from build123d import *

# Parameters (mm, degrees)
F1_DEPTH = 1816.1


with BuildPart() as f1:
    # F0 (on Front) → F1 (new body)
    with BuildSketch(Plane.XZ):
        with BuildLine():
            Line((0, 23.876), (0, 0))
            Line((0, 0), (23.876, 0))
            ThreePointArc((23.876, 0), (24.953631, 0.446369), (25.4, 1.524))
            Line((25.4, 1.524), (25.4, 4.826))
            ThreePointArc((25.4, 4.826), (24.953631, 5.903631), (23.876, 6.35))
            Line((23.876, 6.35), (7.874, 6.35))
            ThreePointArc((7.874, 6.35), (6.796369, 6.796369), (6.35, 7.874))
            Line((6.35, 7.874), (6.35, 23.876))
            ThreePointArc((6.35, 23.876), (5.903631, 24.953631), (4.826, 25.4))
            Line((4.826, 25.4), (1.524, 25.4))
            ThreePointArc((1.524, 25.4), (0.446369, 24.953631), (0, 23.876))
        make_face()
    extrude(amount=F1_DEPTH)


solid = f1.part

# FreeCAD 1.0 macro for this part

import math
import FreeCAD as App
import Part
import Sketcher
Q = App.Units.Quantity

doc = App.newDocument("Part")
body = doc.addObject("PartDesign::Body", "Body")

sketch1 = doc.addObject("Sketcher::SketchObject", "Sketch")
body.addObject(sketch1)
sketch1.AttachmentSupport = (doc.XZ_Plane, [""])
sketch1.MapMode = "FlatFace"
sketch1.addGeometry([
    Part.LineSegment(App.Vector(0, 23.9, 0), App.Vector(0, 0, 0)),
    Part.LineSegment(App.Vector(0, 0, 0), App.Vector(23.9, 0, 0)),
    Part.ArcOfCircle(Part.Circle(App.Vector(23.9, 1.5, 0), App.Vector(0, 0, 1), 1.5), math.radians(-90), math.radians(0)),
    Part.LineSegment(App.Vector(25.4, 1.5, 0), App.Vector(25.4, 4.8, 0)),
    Part.ArcOfCircle(Part.Circle(App.Vector(23.9, 4.8, 0), App.Vector(0, 0, 1), 1.5), math.radians(0), math.radians(90)),
    Part.LineSegment(App.Vector(23.9, 6.3, 0), App.Vector(7.9, 6.3, 0)),
    Part.ArcOfCircle(Part.Circle(App.Vector(7.9, 7.9, 0), App.Vector(0, 0, 1), 1.5), math.radians(180), math.radians(270)),
    Part.LineSegment(App.Vector(6.3, 7.9, 0), App.Vector(6.3, 23.9, 0)),
    Part.ArcOfCircle(Part.Circle(App.Vector(4.8, 23.9, 0), App.Vector(0, 0, 1), 1.5), math.radians(0), math.radians(90)),
    Part.LineSegment(App.Vector(4.8, 25.4, 0), App.Vector(1.5, 25.4, 0)),
    Part.ArcOfCircle(Part.Circle(App.Vector(1.5, 23.9, 0), App.Vector(0, 0, 1), 1.5), math.radians(90), math.radians(180)),
], False)
sketch1.addConstraint([
    Sketcher.Constraint("Coincident", 0, 2, 1, 1),
    Sketcher.Constraint("Tangent", 1, 2, 2, 1),
    Sketcher.Constraint("Tangent", 2, 2, 3, 1),
    Sketcher.Constraint("Tangent", 3, 2, 4, 1),
    Sketcher.Constraint("Tangent", 4, 2, 5, 1),
    Sketcher.Constraint("Tangent", 5, 2, 6, 2),
    Sketcher.Constraint("Tangent", 6, 1, 7, 1),
    Sketcher.Constraint("Tangent", 7, 2, 8, 1),
    Sketcher.Constraint("Tangent", 8, 2, 9, 1),
    Sketcher.Constraint("Tangent", 9, 2, 10, 1),
    Sketcher.Constraint("Tangent", 10, 2, 0, 1),
    Sketcher.Constraint("Vertical", 0),
    Sketcher.Constraint("Horizontal", 1),
    Sketcher.Constraint("Vertical", 3),
    Sketcher.Constraint("Horizontal", 5),
    Sketcher.Constraint("Vertical", 7),
    Sketcher.Constraint("Horizontal", 9),
    Sketcher.Constraint("Coincident", 0, 2, -1, 1),
    Sketcher.Constraint("Equal", 2, 4),
    Sketcher.Constraint("Equal", 4, 6),
    Sketcher.Constraint("Equal", 6, 8),
    Sketcher.Constraint("Equal", 8, 10),
    Sketcher.Constraint("Equal", 1, 0),
    Sketcher.Constraint("Equal", 9, 3),
    Sketcher.Constraint("Radius", 2, Q("0.06 in")),
    Sketcher.Constraint("DistanceX", -1, 1, 2, 2, Q("1 in")),
    Sketcher.Constraint("DistanceX", 5, 2, 5, 1, Q("0.63 in")),
])
pad1 = doc.addObject("PartDesign::Pad", "Pad")
body.addObject(pad1)
pad1.Profile = sketch1
pad1.Length = Q("71.5 in")

doc.recompute()
